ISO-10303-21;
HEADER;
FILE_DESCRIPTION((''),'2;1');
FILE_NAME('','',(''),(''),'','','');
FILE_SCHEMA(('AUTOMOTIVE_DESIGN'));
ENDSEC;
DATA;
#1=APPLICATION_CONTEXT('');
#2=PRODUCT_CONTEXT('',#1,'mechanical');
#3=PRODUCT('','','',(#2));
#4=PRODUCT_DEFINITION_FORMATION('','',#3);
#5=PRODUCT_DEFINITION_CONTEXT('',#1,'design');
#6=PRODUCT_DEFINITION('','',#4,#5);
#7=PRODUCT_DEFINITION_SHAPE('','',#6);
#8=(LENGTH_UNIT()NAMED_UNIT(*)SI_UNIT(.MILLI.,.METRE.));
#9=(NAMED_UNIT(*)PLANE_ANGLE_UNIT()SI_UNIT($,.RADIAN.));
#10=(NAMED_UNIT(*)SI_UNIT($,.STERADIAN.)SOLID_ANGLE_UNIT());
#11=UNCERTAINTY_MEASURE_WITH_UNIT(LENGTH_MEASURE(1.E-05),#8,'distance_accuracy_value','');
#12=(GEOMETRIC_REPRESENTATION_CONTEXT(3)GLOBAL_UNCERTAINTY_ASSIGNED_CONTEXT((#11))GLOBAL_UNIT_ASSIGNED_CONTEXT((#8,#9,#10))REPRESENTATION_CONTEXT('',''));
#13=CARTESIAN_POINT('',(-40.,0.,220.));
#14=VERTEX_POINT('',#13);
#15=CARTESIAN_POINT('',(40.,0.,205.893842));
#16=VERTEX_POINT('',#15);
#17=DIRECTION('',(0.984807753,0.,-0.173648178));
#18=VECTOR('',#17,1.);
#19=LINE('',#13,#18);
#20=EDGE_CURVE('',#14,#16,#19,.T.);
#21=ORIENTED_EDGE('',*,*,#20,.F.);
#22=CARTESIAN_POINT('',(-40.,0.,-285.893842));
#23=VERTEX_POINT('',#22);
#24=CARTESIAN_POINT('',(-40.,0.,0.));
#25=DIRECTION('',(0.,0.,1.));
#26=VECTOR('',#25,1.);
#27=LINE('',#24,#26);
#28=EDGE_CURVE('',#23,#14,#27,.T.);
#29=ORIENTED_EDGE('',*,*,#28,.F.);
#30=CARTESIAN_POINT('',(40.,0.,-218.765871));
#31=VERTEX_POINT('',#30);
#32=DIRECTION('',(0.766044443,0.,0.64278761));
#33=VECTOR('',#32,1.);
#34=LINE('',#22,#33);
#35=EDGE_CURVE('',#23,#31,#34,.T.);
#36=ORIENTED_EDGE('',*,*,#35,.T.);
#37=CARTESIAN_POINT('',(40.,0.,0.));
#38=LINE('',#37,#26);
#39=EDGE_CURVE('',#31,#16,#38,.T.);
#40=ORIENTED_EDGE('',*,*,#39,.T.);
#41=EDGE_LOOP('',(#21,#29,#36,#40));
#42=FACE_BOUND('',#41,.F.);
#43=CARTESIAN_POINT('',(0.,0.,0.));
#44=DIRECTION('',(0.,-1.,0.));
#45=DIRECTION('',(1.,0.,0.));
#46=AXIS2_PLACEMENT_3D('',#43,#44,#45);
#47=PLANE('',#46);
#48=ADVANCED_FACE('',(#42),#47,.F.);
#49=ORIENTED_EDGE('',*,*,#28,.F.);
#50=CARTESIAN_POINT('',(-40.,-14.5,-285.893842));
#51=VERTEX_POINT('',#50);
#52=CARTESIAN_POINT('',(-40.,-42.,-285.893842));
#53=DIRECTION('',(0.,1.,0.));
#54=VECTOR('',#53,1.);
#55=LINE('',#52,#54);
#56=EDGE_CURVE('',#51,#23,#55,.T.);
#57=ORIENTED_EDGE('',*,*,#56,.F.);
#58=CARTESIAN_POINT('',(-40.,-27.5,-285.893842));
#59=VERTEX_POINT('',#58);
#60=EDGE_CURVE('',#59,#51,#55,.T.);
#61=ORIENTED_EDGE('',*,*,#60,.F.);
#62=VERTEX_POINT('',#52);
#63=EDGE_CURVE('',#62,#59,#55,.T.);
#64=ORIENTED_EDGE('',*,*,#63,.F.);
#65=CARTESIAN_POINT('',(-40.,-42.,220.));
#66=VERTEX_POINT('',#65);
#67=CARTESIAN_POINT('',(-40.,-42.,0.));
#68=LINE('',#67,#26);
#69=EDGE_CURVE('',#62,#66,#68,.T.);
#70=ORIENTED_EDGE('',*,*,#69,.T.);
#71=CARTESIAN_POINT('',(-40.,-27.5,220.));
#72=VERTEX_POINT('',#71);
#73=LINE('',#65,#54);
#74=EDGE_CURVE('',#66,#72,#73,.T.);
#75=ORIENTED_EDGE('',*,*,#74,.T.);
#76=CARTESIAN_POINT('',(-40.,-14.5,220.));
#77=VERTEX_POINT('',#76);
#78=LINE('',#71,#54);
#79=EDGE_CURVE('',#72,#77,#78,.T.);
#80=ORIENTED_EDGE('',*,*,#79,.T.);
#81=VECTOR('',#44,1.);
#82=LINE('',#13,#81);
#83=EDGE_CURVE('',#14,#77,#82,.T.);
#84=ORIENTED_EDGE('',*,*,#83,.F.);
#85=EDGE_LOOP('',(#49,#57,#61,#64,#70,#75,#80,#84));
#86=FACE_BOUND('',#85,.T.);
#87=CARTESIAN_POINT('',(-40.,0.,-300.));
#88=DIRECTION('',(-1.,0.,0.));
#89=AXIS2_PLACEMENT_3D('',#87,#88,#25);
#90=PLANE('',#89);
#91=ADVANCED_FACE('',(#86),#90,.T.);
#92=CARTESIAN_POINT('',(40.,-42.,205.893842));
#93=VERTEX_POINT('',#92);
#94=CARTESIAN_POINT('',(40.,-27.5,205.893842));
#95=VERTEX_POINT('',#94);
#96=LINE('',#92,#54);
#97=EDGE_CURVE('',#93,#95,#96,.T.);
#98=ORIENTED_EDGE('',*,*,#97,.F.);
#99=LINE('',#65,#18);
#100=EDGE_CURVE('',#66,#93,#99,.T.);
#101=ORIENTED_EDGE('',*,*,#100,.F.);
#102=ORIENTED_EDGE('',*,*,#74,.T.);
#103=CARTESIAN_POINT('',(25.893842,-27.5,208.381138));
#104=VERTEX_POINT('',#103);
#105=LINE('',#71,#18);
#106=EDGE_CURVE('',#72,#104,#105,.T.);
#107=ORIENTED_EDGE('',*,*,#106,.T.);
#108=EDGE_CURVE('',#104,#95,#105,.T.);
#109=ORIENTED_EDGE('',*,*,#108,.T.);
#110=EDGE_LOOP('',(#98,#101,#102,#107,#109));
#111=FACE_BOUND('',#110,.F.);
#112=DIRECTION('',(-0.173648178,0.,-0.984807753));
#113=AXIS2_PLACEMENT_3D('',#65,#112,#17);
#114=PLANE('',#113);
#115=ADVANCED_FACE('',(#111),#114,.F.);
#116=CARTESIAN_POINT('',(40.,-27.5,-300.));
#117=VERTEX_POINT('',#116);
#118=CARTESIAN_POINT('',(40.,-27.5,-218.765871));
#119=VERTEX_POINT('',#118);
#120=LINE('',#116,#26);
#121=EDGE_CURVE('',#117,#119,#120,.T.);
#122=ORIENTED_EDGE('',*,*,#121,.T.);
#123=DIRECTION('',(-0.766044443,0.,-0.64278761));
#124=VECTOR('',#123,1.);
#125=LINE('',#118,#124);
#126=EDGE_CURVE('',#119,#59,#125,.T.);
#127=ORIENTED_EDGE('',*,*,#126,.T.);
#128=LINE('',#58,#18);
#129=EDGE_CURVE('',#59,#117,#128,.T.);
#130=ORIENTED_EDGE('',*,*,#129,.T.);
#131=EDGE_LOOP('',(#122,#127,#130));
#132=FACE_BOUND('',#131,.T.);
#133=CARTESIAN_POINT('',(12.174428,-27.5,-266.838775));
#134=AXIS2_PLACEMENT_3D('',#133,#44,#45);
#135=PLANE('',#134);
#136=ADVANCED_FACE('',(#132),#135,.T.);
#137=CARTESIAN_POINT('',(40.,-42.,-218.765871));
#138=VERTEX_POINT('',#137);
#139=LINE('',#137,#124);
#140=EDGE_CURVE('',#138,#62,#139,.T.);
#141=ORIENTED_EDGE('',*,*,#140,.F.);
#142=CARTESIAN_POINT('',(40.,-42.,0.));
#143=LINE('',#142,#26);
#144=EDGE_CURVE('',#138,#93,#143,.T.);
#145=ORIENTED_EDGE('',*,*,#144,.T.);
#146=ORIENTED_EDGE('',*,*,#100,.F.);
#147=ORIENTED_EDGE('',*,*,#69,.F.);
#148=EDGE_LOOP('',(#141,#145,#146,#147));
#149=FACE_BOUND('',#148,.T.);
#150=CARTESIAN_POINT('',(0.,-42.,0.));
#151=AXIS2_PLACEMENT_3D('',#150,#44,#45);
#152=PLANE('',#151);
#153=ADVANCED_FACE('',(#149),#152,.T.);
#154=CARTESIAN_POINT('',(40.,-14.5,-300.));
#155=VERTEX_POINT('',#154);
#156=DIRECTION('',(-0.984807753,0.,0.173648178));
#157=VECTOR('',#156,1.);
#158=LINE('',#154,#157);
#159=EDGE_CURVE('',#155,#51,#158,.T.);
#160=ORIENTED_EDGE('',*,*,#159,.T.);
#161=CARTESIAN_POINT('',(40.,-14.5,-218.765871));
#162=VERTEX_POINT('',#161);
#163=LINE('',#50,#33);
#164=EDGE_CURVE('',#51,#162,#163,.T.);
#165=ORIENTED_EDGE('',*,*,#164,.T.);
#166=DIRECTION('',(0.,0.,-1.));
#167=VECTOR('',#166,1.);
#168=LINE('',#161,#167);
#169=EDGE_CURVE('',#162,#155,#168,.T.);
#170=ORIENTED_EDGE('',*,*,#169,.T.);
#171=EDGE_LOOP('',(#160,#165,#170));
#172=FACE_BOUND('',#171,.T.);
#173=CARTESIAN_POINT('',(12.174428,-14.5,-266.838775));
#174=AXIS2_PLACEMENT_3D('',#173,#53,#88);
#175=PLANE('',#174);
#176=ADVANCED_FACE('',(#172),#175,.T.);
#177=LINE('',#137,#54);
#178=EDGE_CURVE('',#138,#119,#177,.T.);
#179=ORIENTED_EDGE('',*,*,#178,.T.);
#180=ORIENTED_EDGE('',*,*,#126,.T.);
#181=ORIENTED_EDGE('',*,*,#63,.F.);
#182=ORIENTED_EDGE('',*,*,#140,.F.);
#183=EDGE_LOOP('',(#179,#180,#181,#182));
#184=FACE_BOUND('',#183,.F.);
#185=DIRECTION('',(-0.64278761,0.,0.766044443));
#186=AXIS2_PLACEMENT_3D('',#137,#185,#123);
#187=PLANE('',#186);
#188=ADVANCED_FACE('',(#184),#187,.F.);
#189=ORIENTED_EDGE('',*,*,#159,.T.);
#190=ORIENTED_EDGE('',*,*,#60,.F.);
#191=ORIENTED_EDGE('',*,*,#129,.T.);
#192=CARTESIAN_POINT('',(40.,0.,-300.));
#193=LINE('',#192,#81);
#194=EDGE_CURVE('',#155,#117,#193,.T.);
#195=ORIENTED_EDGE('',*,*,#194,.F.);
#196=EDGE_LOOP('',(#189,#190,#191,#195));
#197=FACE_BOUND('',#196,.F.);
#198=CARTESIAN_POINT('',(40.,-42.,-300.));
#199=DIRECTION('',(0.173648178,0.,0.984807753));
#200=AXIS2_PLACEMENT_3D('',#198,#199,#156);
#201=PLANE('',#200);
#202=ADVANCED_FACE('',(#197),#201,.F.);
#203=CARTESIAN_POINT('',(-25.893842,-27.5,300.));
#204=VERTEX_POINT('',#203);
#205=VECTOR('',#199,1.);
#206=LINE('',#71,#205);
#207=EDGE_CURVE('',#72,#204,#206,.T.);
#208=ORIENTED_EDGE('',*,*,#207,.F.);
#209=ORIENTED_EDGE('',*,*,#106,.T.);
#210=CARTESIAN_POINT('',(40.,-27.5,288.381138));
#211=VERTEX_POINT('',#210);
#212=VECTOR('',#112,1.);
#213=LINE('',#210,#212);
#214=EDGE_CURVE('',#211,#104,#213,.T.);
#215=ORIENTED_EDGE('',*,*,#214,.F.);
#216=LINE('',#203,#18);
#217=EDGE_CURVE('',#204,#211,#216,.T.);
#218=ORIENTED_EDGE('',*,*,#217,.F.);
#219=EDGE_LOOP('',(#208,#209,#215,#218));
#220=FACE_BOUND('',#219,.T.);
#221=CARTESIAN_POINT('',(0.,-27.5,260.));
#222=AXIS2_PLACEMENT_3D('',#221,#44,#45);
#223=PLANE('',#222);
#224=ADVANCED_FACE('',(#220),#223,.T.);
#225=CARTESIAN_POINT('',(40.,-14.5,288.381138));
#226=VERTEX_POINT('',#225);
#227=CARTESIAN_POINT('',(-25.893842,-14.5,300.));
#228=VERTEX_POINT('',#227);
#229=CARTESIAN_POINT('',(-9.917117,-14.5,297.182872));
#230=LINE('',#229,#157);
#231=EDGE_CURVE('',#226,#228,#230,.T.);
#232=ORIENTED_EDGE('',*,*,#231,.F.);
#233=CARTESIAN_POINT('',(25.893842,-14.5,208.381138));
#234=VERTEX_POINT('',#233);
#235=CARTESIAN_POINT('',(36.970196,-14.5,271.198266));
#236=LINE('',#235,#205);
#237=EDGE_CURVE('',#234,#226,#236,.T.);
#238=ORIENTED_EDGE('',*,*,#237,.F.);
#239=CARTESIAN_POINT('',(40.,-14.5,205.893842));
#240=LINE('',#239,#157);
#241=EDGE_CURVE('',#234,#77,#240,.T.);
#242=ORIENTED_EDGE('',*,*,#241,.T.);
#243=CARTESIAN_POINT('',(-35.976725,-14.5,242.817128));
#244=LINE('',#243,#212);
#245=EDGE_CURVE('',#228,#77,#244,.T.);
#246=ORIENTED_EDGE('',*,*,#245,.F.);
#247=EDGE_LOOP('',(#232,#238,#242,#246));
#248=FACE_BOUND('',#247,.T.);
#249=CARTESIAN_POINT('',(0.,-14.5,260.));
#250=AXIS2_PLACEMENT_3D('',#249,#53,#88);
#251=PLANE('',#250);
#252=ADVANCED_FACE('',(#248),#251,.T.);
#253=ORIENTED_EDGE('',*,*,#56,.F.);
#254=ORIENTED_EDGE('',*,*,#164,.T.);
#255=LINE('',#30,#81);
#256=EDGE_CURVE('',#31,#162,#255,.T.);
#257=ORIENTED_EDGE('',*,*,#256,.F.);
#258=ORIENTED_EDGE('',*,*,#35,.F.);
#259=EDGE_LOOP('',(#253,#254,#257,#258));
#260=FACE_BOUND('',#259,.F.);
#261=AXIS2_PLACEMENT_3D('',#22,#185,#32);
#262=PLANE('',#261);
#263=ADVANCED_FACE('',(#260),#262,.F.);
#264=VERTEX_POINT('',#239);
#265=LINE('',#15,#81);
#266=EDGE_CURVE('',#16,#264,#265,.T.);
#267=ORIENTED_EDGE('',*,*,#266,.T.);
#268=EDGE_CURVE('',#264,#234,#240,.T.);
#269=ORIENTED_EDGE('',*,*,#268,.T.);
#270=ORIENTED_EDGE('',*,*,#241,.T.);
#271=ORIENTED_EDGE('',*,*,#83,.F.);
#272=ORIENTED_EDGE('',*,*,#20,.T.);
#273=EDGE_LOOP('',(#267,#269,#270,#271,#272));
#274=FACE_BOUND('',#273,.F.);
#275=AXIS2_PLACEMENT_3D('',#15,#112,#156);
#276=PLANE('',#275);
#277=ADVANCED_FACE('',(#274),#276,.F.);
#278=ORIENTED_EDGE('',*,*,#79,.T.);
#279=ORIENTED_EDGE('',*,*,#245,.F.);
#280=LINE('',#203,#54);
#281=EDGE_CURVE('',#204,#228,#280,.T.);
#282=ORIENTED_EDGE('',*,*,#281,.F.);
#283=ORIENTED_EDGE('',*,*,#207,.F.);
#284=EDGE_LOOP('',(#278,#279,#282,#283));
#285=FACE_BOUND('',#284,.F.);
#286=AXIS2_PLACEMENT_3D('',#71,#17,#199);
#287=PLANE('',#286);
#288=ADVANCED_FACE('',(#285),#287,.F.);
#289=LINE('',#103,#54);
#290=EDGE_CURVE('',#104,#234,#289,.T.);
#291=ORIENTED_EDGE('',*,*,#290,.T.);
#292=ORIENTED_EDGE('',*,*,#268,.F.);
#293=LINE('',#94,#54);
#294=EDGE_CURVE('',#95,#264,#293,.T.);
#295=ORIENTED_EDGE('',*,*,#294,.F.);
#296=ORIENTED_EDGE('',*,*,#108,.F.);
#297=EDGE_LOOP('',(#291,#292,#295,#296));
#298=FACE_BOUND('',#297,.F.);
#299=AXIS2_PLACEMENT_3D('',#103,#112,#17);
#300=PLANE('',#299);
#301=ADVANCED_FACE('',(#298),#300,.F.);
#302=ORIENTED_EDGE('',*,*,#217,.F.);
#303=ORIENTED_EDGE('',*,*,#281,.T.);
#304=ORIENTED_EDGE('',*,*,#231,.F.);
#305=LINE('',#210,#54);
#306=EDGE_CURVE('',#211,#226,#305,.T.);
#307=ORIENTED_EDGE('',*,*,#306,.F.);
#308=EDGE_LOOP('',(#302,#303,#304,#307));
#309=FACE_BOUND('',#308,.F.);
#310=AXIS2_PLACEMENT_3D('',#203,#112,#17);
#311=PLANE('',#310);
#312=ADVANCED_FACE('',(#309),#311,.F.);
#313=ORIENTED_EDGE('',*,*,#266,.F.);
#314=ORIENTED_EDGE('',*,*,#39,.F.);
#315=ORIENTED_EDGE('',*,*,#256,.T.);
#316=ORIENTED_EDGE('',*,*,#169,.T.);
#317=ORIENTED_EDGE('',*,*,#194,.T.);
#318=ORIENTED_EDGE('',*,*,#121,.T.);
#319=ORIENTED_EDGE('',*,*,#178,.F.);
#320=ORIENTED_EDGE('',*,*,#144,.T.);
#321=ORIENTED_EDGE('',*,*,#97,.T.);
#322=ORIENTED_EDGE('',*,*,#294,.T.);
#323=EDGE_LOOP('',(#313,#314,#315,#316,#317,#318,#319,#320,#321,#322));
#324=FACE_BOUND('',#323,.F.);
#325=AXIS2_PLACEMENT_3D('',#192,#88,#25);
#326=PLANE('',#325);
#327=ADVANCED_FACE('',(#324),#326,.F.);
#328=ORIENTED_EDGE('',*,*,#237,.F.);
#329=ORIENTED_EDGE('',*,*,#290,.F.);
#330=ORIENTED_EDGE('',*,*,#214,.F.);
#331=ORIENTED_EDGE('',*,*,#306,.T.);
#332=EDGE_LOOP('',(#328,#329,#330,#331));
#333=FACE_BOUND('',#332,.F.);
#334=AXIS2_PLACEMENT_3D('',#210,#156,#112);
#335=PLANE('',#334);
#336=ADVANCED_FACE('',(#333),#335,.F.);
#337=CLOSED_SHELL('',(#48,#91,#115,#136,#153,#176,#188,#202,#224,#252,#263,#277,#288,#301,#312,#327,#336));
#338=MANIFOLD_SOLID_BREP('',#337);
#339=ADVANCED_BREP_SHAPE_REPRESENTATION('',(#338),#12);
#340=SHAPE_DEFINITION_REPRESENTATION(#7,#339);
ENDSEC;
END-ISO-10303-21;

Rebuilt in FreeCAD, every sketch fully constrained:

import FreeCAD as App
import Part
import Sketcher
Q = App.Units.Quantity


def add_polygon(sketch, points):
    """Adds a closed chain of lines whose ends are joined by coincident constraints."""
    first, n = sketch.GeometryCount, len(points)
    for a, b in zip(points, points[1:] + points[:1]):
        sketch.addGeometry(Part.LineSegment(App.Vector(*a, 0), App.Vector(*b, 0)), False)
    for i in range(n):
        sketch.addConstraint(Sketcher.Constraint("Coincident", first + i, 2, first + (i + 1) % n, 1))

doc = App.newDocument("Part")
params = doc.addObject("Spreadsheet::Sheet", "Params")
for row, (alias, value) in enumerate([
    ("sketch1_width", "80 mm"),
    ("sketch1_height", "600 mm"),
    ("pad1_length", "42 mm"),
    ("sketch2_width", "80 mm"),
    ("pocket1_length", "14.5 mm"),
    ("sketch3_width", "80 mm"),
    ("pocket2_length", "14.5 mm"),
    ("sketch4_width", "80 mm"),
    ("pocket3_length", "14.5 mm"),
    ("sketch5_width", "80 mm"),
    ("pocket4_length", "14.5 mm"),
    ("sketch6_height", "80 mm"),
    ("sketch7_width", "80 mm"),
    ("pocket7_length", "14.5 mm"),
    ("pocket8_length", "14.5 mm"),
], start=1):
    params.set(f"A{row}", alias)
    params.set(f"B{row}", "=" + value)
    params.setAlias(f"B{row}", alias)

body = doc.addObject("PartDesign::Body", "Body")

# Sketch on XZ plane
sketch1 = body.newObject("Sketcher::SketchObject", "Sketch")
sketch1.AttachmentSupport = (doc.getObject("XZ_Plane"), [""])
sketch1.MapMode = "FlatFace"
add_polygon(sketch1, [(-40, 300), (-40, -300), (40, -300), (40, 300)])  # lines 0-3
sketch1.addConstraint(Sketcher.Constraint("Vertical", 0))
sketch1.addConstraint(Sketcher.Constraint("Horizontal", 1))
sketch1.addConstraint(Sketcher.Constraint("Vertical", 2))
sketch1.addConstraint(Sketcher.Constraint("Horizontal", 3))
sketch1.addConstraint(Sketcher.Constraint("Symmetric", 0, 2, 2, 2, -1, 1))
sketch1.addConstraint(Sketcher.Constraint("DistanceX", 1, 1, 1, 2, Q("80 mm")))
sketch1.addConstraint(Sketcher.Constraint("DistanceY", 0, 2, 0, 1, Q("600 mm")))
sketch1.setExpression("Constraints[9]", "Params.sketch1_width")
sketch1.setExpression("Constraints[10]", "Params.sketch1_height")
pad1 = body.newObject("PartDesign::Pad", "Pad")
pad1.Profile = sketch1
pad1.setExpression("Length", "Params.pad1_length")

# Sketch on XZ plane
sketch2 = body.newObject("Sketcher::SketchObject", "Sketch001")
sketch2.AttachmentSupport = (doc.getObject("XZ_Plane"), [""])
sketch2.MapMode = "FlatFace"
sketch2.AttachmentOffset = App.Placement(App.Vector(0, 0, 42), App.Rotation())
add_polygon(sketch2, [(-40, 300), (-40, 220), (40, 220), (40, 300)])  # lines 0-3
sketch2.addConstraint(Sketcher.Constraint("Vertical", 0))
sketch2.addConstraint(Sketcher.Constraint("Horizontal", 1))
sketch2.addConstraint(Sketcher.Constraint("Vertical", 2))
sketch2.addConstraint(Sketcher.Constraint("Horizontal", 3))
sketch2.addConstraint(Sketcher.Constraint("Equal", 3, 0))
sketch2.addConstraint(Sketcher.Constraint("DistanceX", 1, 1, 1, 2, Q("80 mm")))
sketch2.addConstraint(Sketcher.Constraint("DistanceX", 0, 2, -1, 1, Q("40 mm")))
sketch2.addConstraint(Sketcher.Constraint("DistanceY", -1, 1, 0, 2, Q("220 mm")))
sketch2.setExpression("Constraints[9]", "Params.sketch2_width")
pocket1 = body.newObject("PartDesign::Pocket", "Pocket")
pocket1.Profile = sketch2
pocket1.setExpression("Length", "Params.pocket1_length")

# Sketch on XZ plane
sketch3 = body.newObject("Sketcher::SketchObject", "Sketch002")
sketch3.AttachmentSupport = (doc.getObject("XZ_Plane"), [""])
sketch3.MapMode = "FlatFace"
add_polygon(sketch3, [(40, 300), (40, 220), (-40, 220), (-40, 300)])  # lines 0-3
sketch3.addConstraint(Sketcher.Constraint("Vertical", 0))
sketch3.addConstraint(Sketcher.Constraint("Horizontal", 1))
sketch3.addConstraint(Sketcher.Constraint("Vertical", 2))
sketch3.addConstraint(Sketcher.Constraint("Horizontal", 3))
sketch3.addConstraint(Sketcher.Constraint("Equal", 3, 0))
sketch3.addConstraint(Sketcher.Constraint("DistanceX", 1, 2, 1, 1, Q("80 mm")))
sketch3.addConstraint(Sketcher.Constraint("DistanceX", -1, 1, 0, 2, Q("40 mm")))
sketch3.addConstraint(Sketcher.Constraint("DistanceY", -1, 1, 0, 2, Q("220 mm")))
sketch3.setExpression("Constraints[9]", "Params.sketch3_width")
pocket2 = body.newObject("PartDesign::Pocket", "Pocket001")
pocket2.Profile = sketch3
pocket2.setExpression("Length", "Params.pocket2_length")
pocket2.Reversed = True

# Sketch on XZ plane
sketch4 = body.newObject("Sketcher::SketchObject", "Sketch003")
sketch4.AttachmentSupport = (doc.getObject("XZ_Plane"), [""])
sketch4.MapMode = "FlatFace"
sketch4.AttachmentOffset = App.Placement(App.Vector(0, 0, 42), App.Rotation())
add_polygon(sketch4, [(40, 220), (-40, 220), (40, 205.893842)])  # lines 0-2
sketch4.addConstraint(Sketcher.Constraint("Horizontal", 0))
sketch4.addConstraint(Sketcher.Constraint("Vertical", 2))
sketch4.addConstraint(Sketcher.Constraint("DistanceX", 0, 2, 0, 1, Q("80 mm")))
sketch4.addConstraint(Sketcher.Constraint("Angle", 1, Q("-10 deg")))
sketch4.addConstraint(Sketcher.Constraint("DistanceX", 0, 2, -1, 1, Q("40 mm")))
sketch4.addConstraint(Sketcher.Constraint("DistanceY", -1, 1, 0, 2, Q("220 mm")))
sketch4.setExpression("Constraints[5]", "Params.sketch4_width")
pocket3 = body.newObject("PartDesign::Pocket", "Pocket002")
pocket3.Profile = sketch4
pocket3.setExpression("Length", "Params.pocket3_length")

# Sketch on XZ plane
sketch5 = body.newObject("Sketcher::SketchObject", "Sketch004")
sketch5.AttachmentSupport = (doc.getObject("XZ_Plane"), [""])
sketch5.MapMode = "FlatFace"
add_polygon(sketch5, [(40, 205.893842), (-40, 220), (40, 220)])  # lines 0-2
sketch5.addConstraint(Sketcher.Constraint("Horizontal", 1))
sketch5.addConstraint(Sketcher.Constraint("Vertical", 2))
sketch5.addConstraint(Sketcher.Constraint("DistanceX", 1, 1, 1, 2, Q("80 mm")))
sketch5.addConstraint(Sketcher.Constraint("Angle", 0, Q("170 deg")))
sketch5.addConstraint(Sketcher.Constraint("DistanceX", 0, 2, -1, 1, Q("40 mm")))
sketch5.addConstraint(Sketcher.Constraint("DistanceY", -1, 1, 0, 2, Q("220 mm")))
sketch5.setExpression("Constraints[5]", "Params.sketch5_width")
pocket4 = body.newObject("PartDesign::Pocket", "Pocket003")
pocket4.Profile = sketch5
pocket4.setExpression("Length", "Params.pocket4_length")
pocket4.Reversed = True

# Sketch on XZ plane
sketch6 = body.newObject("Sketcher::SketchObject", "Sketch005")
sketch6.AttachmentSupport = (doc.getObject("XZ_Plane"), [""])
sketch6.MapMode = "FlatFace"
sketch6.AttachmentOffset = App.Placement(App.Vector(0, 0, 27.5), App.Rotation())
add_polygon(sketch6, [(-40, 300), (-40, 220), (-25.893842, 300)])  # lines 0-2
add_polygon(sketch6, [(40, 300), (-25.893842, 300), (40, 288.381138)])  # lines 3-5
add_polygon(sketch6, [(40, 288.381138), (25.893842, 208.381138), (40, 205.893842)])  # lines 6-8
sketch6.addConstraint(Sketcher.Constraint("Vertical", 0))
sketch6.addConstraint(Sketcher.Constraint("Horizontal", 2))
sketch6.addConstraint(Sketcher.Constraint("Horizontal", 3))
sketch6.addConstraint(Sketcher.Constraint("Vertical", 5))
sketch6.addConstraint(Sketcher.Constraint("Vertical", 8))
sketch6.addConstraint(Sketcher.Constraint("Coincident", 3, 2, 1, 2))
sketch6.addConstraint(Sketcher.Constraint("Coincident", 8, 2, 4, 2))
sketch6.addConstraint(Sketcher.Constraint("Perpendicular", 1, 4))
sketch6.addConstraint(Sketcher.Constraint("Perpendicular", 4, 6))
sketch6.addConstraint(Sketcher.Constraint("Perpendicular", 6, 7))
sketch6.addConstraint(Sketcher.Constraint("Equal", 1, 6))
sketch6.addConstraint(Sketcher.Constraint("DistanceY", 0, 2, 0, 1, Q("80 mm")))
sketch6.addConstraint(Sketcher.Constraint("Angle", 1, Q("80 deg")))
sketch6.addConstraint(Sketcher.Constraint("DistanceX", 0, 2, -1, 1, Q("40 mm")))
sketch6.addConstraint(Sketcher.Constraint("DistanceY", -1, 1, 0, 2, Q("220 mm")))
sketch6.addConstraint(Sketcher.Constraint("DistanceX", -1, 1, 4, 2, Q("40 mm")))
sketch6.setExpression("Constraints[20]", "Params.sketch6_height")
pocket5 = body.newObject("PartDesign::Pocket", "Pocket004")
pocket5.Profile = sketch6
pocket5.Type = "ThroughAll"

# Sketch on XZ plane
sketch7 = body.newObject("Sketcher::SketchObject", "Sketch006")
sketch7.AttachmentSupport = (doc.getObject("XZ_Plane"), [""])
sketch7.MapMode = "FlatFace"
sketch7.AttachmentOffset = App.Placement(App.Vector(0, 0, 42), App.Rotation())
add_polygon(sketch7, [(-40, -300), (40, -300), (-40, -285.893842)])  # lines 0-2
sketch7.addConstraint(Sketcher.Constraint("Horizontal", 0))
sketch7.addConstraint(Sketcher.Constraint("Vertical", 2))
sketch7.addConstraint(Sketcher.Constraint("DistanceX", 0, 1, 0, 2, Q("80 mm")))
sketch7.addConstraint(Sketcher.Constraint("Angle", 1, Q("170 deg")))
sketch7.addConstraint(Sketcher.Constraint("DistanceX", -1, 1, 0, 2, Q("40 mm")))
sketch7.addConstraint(Sketcher.Constraint("DistanceY", 0, 2, -1, 1, Q("300 mm")))
sketch7.setExpression("Constraints[5]", "Params.sketch7_width")
pocket6 = body.newObject("PartDesign::Pocket", "Pocket005")
pocket6.Profile = sketch7
pocket6.Type = "ThroughAll"

# Sketch on XZ plane
sketch8 = body.newObject("Sketcher::SketchObject", "Sketch007")
sketch8.AttachmentSupport = (doc.getObject("XZ_Plane"), [""])
sketch8.MapMode = "FlatFace"
sketch8.AttachmentOffset = App.Placement(App.Vector(0, 0, 42), App.Rotation())
add_polygon(sketch8, [(-40, -285.893842), (40, -300), (40, -218.765871)])  # lines 0-2
sketch8.addConstraint(Sketcher.Constraint("Vertical", 1))
sketch8.addConstraint(Sketcher.Constraint("Angle", 0, Q("-10 deg")))
sketch8.addConstraint(Sketcher.Constraint("Angle", 2, Q("-140 deg")))
sketch8.addConstraint(Sketcher.Constraint("DistanceX", -1, 1, 0, 2, Q("40 mm")))
sketch8.addConstraint(Sketcher.Constraint("DistanceY", 0, 2, -1, 1, Q("300 mm")))
sketch8.addConstraint(Sketcher.Constraint("DistanceX", 2, 2, -1, 1, Q("40 mm")))
pocket7 = body.newObject("PartDesign::Pocket", "Pocket006")
pocket7.Profile = sketch8
pocket7.setExpression("Length", "Params.pocket7_length")

# Sketch on XZ plane
sketch9 = body.newObject("Sketcher::SketchObject", "Sketch008")
sketch9.AttachmentSupport = (doc.getObject("XZ_Plane"), [""])
sketch9.MapMode = "FlatFace"
add_polygon(sketch9, [(40, -218.765871), (40, -300), (-40, -285.893842)])  # lines 0-2
sketch9.addConstraint(Sketcher.Constraint("Vertical", 0))
sketch9.addConstraint(Sketcher.Constraint("Angle", 1, Q("170 deg")))
sketch9.addConstraint(Sketcher.Constraint("Angle", 2, Q("40 deg")))
sketch9.addConstraint(Sketcher.Constraint("DistanceX", -1, 1, 0, 2, Q("40 mm")))
sketch9.addConstraint(Sketcher.Constraint("DistanceY", 0, 2, -1, 1, Q("300 mm")))
sketch9.addConstraint(Sketcher.Constraint("DistanceX", 1, 2, -1, 1, Q("40 mm")))
pocket8 = body.newObject("PartDesign::Pocket", "Pocket007")
pocket8.Profile = sketch9
pocket8.setExpression("Length", "Params.pocket8_length")
pocket8.Reversed = True

doc.recompute()
